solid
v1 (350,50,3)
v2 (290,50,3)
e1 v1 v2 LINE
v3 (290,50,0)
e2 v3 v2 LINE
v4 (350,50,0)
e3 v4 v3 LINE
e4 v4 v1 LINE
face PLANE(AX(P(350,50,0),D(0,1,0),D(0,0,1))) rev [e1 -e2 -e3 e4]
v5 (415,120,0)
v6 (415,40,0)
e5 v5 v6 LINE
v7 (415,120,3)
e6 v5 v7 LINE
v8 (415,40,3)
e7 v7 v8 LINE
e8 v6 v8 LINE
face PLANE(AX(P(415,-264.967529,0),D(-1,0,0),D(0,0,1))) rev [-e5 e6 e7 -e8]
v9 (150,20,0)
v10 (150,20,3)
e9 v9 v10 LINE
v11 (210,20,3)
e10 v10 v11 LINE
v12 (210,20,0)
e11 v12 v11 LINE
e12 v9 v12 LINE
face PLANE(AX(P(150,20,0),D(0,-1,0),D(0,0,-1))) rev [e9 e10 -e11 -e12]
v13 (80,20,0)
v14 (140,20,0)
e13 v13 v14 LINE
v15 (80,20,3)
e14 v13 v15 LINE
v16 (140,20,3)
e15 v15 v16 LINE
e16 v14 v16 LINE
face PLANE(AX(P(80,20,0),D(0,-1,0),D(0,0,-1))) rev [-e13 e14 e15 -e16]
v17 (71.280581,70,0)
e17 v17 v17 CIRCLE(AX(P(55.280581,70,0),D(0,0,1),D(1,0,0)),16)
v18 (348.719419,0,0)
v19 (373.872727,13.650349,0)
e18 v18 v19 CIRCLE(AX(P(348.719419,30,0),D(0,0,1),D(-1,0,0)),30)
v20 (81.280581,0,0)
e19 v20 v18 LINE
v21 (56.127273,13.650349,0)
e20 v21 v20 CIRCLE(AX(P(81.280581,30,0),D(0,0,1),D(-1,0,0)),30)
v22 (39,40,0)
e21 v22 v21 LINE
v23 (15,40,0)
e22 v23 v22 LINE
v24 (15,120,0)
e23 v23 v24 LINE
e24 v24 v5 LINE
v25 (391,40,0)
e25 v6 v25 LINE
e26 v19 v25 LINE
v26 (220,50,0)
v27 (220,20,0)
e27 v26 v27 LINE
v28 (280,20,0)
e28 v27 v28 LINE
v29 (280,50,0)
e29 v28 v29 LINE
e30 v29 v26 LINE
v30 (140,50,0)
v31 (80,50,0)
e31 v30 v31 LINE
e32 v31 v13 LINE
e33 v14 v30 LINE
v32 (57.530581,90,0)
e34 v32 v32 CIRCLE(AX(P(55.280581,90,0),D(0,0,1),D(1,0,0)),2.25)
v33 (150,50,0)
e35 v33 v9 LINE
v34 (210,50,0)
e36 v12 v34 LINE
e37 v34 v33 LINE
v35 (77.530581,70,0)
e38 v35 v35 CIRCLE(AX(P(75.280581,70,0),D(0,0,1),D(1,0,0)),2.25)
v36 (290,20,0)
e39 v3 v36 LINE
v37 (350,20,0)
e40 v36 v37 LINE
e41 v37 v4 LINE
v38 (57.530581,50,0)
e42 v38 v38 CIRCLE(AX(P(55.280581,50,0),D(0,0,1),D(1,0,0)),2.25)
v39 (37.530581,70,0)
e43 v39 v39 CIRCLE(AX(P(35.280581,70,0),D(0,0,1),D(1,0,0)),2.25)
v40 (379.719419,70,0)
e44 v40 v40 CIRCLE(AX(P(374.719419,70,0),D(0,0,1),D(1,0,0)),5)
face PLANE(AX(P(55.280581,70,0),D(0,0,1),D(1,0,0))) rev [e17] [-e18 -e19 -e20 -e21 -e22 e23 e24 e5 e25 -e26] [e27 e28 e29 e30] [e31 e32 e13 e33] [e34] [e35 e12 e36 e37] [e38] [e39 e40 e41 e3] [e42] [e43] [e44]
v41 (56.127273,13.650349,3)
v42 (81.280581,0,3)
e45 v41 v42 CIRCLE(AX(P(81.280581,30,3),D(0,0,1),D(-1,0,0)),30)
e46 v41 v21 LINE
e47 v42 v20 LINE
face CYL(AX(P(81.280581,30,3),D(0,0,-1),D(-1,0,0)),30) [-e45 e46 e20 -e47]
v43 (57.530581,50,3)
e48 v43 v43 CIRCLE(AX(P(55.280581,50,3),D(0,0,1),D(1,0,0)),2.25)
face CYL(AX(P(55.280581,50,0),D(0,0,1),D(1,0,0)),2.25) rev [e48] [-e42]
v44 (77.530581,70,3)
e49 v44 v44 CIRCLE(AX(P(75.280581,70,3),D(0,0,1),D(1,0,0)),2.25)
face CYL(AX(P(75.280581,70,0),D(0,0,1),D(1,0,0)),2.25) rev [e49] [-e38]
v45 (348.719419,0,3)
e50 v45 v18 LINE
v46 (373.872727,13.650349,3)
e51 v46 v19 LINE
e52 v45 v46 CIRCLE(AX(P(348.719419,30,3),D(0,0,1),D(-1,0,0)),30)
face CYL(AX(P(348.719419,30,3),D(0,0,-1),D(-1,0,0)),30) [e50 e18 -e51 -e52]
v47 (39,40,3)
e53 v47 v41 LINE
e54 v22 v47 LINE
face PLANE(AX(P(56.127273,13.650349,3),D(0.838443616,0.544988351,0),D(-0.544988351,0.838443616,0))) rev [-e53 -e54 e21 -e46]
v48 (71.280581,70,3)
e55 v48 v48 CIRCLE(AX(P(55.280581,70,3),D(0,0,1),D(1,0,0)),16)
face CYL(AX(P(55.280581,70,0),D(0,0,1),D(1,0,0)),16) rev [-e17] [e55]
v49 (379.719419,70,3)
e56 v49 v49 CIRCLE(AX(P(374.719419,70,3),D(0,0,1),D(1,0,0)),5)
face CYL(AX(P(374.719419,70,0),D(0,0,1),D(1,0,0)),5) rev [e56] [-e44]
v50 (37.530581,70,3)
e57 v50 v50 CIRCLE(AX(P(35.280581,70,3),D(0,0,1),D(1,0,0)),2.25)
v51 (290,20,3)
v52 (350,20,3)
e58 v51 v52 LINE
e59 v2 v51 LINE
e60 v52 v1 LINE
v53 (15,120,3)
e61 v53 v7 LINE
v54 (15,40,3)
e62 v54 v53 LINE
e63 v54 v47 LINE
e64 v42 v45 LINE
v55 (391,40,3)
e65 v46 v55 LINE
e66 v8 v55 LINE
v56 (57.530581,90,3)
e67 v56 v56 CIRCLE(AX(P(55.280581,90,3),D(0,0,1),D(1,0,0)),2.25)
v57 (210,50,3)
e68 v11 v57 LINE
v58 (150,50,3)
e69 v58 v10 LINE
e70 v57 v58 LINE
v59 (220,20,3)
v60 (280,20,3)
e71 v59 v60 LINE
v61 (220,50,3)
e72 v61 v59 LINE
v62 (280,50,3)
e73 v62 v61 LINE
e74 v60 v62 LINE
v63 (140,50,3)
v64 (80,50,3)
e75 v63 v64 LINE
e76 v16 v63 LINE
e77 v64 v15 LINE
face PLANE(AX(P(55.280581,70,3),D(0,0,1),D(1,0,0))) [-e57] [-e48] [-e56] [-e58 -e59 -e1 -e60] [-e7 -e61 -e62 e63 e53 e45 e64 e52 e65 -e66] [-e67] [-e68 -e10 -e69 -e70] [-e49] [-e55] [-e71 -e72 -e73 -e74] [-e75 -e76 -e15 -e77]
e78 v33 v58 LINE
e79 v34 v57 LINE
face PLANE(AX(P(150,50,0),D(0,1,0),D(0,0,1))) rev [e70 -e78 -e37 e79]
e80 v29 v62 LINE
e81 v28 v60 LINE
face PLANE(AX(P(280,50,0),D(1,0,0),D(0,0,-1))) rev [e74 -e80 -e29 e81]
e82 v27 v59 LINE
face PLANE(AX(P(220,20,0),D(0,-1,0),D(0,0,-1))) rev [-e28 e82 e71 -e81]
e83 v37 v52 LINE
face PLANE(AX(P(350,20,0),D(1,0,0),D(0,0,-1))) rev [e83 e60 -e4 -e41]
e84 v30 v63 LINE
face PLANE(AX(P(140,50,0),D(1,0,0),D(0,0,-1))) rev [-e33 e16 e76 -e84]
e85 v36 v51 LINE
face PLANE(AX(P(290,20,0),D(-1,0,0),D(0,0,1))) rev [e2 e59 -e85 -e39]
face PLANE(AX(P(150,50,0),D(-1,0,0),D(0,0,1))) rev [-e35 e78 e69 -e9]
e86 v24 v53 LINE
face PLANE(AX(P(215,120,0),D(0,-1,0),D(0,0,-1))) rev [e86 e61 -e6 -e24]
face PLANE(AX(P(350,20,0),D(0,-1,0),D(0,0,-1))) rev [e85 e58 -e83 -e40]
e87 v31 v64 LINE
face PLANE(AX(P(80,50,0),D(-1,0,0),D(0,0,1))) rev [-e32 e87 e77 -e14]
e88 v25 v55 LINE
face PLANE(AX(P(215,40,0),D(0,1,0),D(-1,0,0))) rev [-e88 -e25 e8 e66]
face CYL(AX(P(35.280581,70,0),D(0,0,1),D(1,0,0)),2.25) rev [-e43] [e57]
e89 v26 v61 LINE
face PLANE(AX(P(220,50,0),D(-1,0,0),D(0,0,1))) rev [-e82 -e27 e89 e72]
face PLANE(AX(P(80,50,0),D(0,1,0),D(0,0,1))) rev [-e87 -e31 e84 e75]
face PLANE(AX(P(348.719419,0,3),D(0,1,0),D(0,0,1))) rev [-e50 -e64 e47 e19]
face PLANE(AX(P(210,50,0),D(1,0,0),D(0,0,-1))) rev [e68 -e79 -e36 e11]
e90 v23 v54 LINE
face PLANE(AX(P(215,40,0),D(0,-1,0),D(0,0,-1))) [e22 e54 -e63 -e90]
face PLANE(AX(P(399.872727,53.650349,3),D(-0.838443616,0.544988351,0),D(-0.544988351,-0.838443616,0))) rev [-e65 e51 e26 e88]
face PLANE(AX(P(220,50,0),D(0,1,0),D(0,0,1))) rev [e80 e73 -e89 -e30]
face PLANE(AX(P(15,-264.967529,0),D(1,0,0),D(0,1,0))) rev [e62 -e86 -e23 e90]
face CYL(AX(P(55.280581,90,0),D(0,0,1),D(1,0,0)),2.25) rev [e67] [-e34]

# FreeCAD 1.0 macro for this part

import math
import FreeCAD as App
import Part
import Sketcher

doc = App.newDocument("Part")
body = doc.addObject("PartDesign::Body", "Body")

sketch1 = body.newObject("Sketcher::SketchObject", "Sketch")
sketch1.AttachmentSupport = (doc.getObject("XY_Plane"), [""])
sketch1.MapMode = "FlatFace"
sketch1.addGeometry([
    Part.LineSegment(App.Vector(375, 100, 0), App.Vector(55, 100, 0)),
    Part.ArcOfCircle(Part.Circle(App.Vector(55, 70, 0), App.Vector(0, 0, 1), 30), math.radians(90), math.radians(213)),
    Part.LineSegment(App.Vector(30, 54, 0), App.Vector(56, 14, 0)),
    Part.ArcOfCircle(Part.Circle(App.Vector(81, 30, 0), App.Vector(0, 0, 1), 30), math.radians(-147), math.radians(-90)),
    Part.LineSegment(App.Vector(81, 0, 0), App.Vector(349, 0, 0)),
    Part.ArcOfCircle(Part.Circle(App.Vector(349, 30, 0), App.Vector(0, 0, 1), 30), math.radians(-90), math.radians(-33)),
    Part.LineSegment(App.Vector(374, 14, 0), App.Vector(400, 54, 0)),
    Part.ArcOfCircle(Part.Circle(App.Vector(375, 70, 0), App.Vector(0, 0, 1), 30), math.radians(-33), math.radians(90)),
], False)
sketch1.addConstraint([
    Sketcher.Constraint("Tangent", 0, 2, 1, 1),
    Sketcher.Constraint("Tangent", 1, 2, 2, 1),
    Sketcher.Constraint("Tangent", 2, 2, 3, 1),
    Sketcher.Constraint("Tangent", 3, 2, 4, 1),
    Sketcher.Constraint("Tangent", 4, 2, 5, 1),
    Sketcher.Constraint("Tangent", 5, 2, 6, 1),
    Sketcher.Constraint("Tangent", 6, 2, 7, 1),
    Sketcher.Constraint("Tangent", 7, 2, 0, 1),
    Sketcher.Constraint("Horizontal", 0),
    Sketcher.Constraint("Horizontal", 4),
    Sketcher.Constraint("Equal", 1, 3),
    Sketcher.Constraint("Equal", 3, 5),
    Sketcher.Constraint("Equal", 5, 7),
    Sketcher.Constraint("PointOnObject", 3, 2, -1),
    Sketcher.Constraint("Horizontal", 2, 2, 5, 2),
    Sketcher.Constraint("Radius", 1, 30.0),
    Sketcher.Constraint("DistanceY", -1, 1, 1, 3, 70.0),
    Sketcher.Constraint("DistanceX", 1, 3, 3, 3, 26.0),
    Sketcher.Constraint("DistanceX", 0, 2, 0, 1, 319.438837),
    Sketcher.Constraint("DistanceX", -1, 1, 1, 3, 55.280581),
])
pad1 = body.newObject("PartDesign::Pad", "Pad")
pad1.Profile = sketch1
pad1.Length = 3

sketch2 = body.newObject("Sketcher::SketchObject", "Sketch001")
sketch2.AttachmentSupport = (doc.getObject("XY_Plane"), [""])
sketch2.MapMode = "FlatFace"
sketch2.AttachmentOffset = App.Placement(App.Vector(0, 0, 3), App.Rotation())
sketch2.addGeometry([
    Part.LineSegment(App.Vector(80, 50, 0), App.Vector(80, 20, 0)),
    Part.LineSegment(App.Vector(80, 20, 0), App.Vector(140, 20, 0)),
    Part.LineSegment(App.Vector(140, 20, 0), App.Vector(140, 50, 0)),
    Part.LineSegment(App.Vector(140, 50, 0), App.Vector(80, 50, 0)),
    Part.LineSegment(App.Vector(150, 50, 0), App.Vector(150, 20, 0)),
    Part.LineSegment(App.Vector(150, 20, 0), App.Vector(210, 20, 0)),
    Part.LineSegment(App.Vector(210, 20, 0), App.Vector(210, 50, 0)),
    Part.LineSegment(App.Vector(210, 50, 0), App.Vector(150, 50, 0)),
    Part.LineSegment(App.Vector(220, 50, 0), App.Vector(220, 20, 0)),
    Part.LineSegment(App.Vector(220, 20, 0), App.Vector(280, 20, 0)),
    Part.LineSegment(App.Vector(280, 20, 0), App.Vector(280, 50, 0)),
    Part.LineSegment(App.Vector(280, 50, 0), App.Vector(220, 50, 0)),
    Part.LineSegment(App.Vector(290, 50, 0), App.Vector(290, 20, 0)),
    Part.LineSegment(App.Vector(290, 20, 0), App.Vector(350, 20, 0)),
    Part.LineSegment(App.Vector(350, 20, 0), App.Vector(350, 50, 0)),
    Part.LineSegment(App.Vector(350, 50, 0), App.Vector(290, 50, 0)),
], False)
sketch2.addConstraint([
    Sketcher.Constraint("Coincident", 0, 2, 1, 1),
    Sketcher.Constraint("Coincident", 1, 2, 2, 1),
    Sketcher.Constraint("Coincident", 2, 2, 3, 1),
    Sketcher.Constraint("Coincident", 3, 2, 0, 1),
    Sketcher.Constraint("Coincident", 4, 2, 5, 1),
    Sketcher.Constraint("Coincident", 5, 2, 6, 1),
    Sketcher.Constraint("Coincident", 6, 2, 7, 1),
    Sketcher.Constraint("Coincident", 7, 2, 4, 1),
    Sketcher.Constraint("Coincident", 8, 2, 9, 1),
    Sketcher.Constraint("Coincident", 9, 2, 10, 1),
    Sketcher.Constraint("Coincident", 10, 2, 11, 1),
    Sketcher.Constraint("Coincident", 11, 2, 8, 1),
    Sketcher.Constraint("Coincident", 12, 2, 13, 1),
    Sketcher.Constraint("Coincident", 13, 2, 14, 1),
    Sketcher.Constraint("Coincident", 14, 2, 15, 1),
    Sketcher.Constraint("Coincident", 15, 2, 12, 1),
    Sketcher.Constraint("Vertical", 0),
    Sketcher.Constraint("Horizontal", 1),
    Sketcher.Constraint("Vertical", 2),
    Sketcher.Constraint("Horizontal", 3),
    Sketcher.Constraint("Vertical", 4),
    Sketcher.Constraint("Horizontal", 5),
    Sketcher.Constraint("Vertical", 6),
    Sketcher.Constraint("Horizontal", 7),
    Sketcher.Constraint("Vertical", 8),
    Sketcher.Constraint("Horizontal", 9),
    Sketcher.Constraint("Vertical", 10),
    Sketcher.Constraint("Horizontal", 11),
    Sketcher.Constraint("Vertical", 12),
    Sketcher.Constraint("Horizontal", 13),
    Sketcher.Constraint("Vertical", 14),
    Sketcher.Constraint("Horizontal", 15),
    Sketcher.Constraint("Horizontal", 1, 2, 4, 2),
    Sketcher.Constraint("Horizontal", 3, 2, 6, 2),
    Sketcher.Constraint("Horizontal", 5, 2, 8, 2),
    Sketcher.Constraint("Horizontal", 7, 2, 10, 2),
    Sketcher.Constraint("Horizontal", 9, 2, 12, 2),
    Sketcher.Constraint("Horizontal", 11, 2, 14, 2),
    Sketcher.Constraint("Equal", 3, 5),
    Sketcher.Constraint("Equal", 7, 9),
    Sketcher.Constraint("Equal", 11, 13),
    Sketcher.Constraint("DistanceX", 1, 1, 1, 2, 60.0),
    Sketcher.Constraint("DistanceY", 0, 2, 0, 1, 30.0),
    Sketcher.Constraint("DistanceX", -1, 1, 0, 2, 80.0),
    Sketcher.Constraint("DistanceY", -1, 1, 0, 2, 20.0),
    Sketcher.Constraint("DistanceX", -1, 1, 4, 2, 150.0),
    Sketcher.Constraint("DistanceX", -1, 1, 8, 2, 220.0),
    Sketcher.Constraint("DistanceX", -1, 1, 12, 2, 290.0),
])
pocket1 = body.newObject("PartDesign::Pocket", "Pocket")
pocket1.Profile = sketch2
pocket1.Type = "ThroughAll"

sketch3 = body.newObject("Sketcher::SketchObject", "Sketch002")
sketch3.AttachmentSupport = (doc.getObject("XY_Plane"), [""])
sketch3.MapMode = "FlatFace"
sketch3.AttachmentOffset = App.Placement(App.Vector(0, 0, 3), App.Rotation())
sketch3.addGeometry([
    Part.Circle(App.Vector(55.3, 70, 0), App.Vector(0, 0, 1), 16),
    Part.Circle(App.Vector(55.3, 90, 0), App.Vector(0, 0, 1), 2.2),
    Part.Circle(App.Vector(75.3, 70, 0), App.Vector(0, 0, 1), 2.2),
    Part.Circle(App.Vector(55.3, 50, 0), App.Vector(0, 0, 1), 2.2),
    Part.Circle(App.Vector(35.3, 70, 0), App.Vector(0, 0, 1), 2.2),
    Part.Circle(App.Vector(374.7, 70, 0), App.Vector(0, 0, 1), 5),
], False)
sketch3.addConstraint([
    Sketcher.Constraint("Equal", 1, 2),
    Sketcher.Constraint("Equal", 2, 3),
    Sketcher.Constraint("Equal", 3, 4),
    Sketcher.Constraint("Horizontal", 0, 3, 2, 3),
    Sketcher.Constraint("Horizontal", 2, 3, 4, 3),
    Sketcher.Constraint("Horizontal", 4, 3, 5, 3),
    Sketcher.Constraint("Vertical", 0, 3, 1, 3),
    Sketcher.Constraint("Vertical", 1, 3, 3, 3),
    Sketcher.Constraint("Diameter", 0, 32.0),
    Sketcher.Constraint("Diameter", 5, 10.0),
    Sketcher.Constraint("Diameter", 1, 4.5),
    Sketcher.Constraint("DistanceY", -1, 1, 0, 3, 70.0),
    Sketcher.Constraint("DistanceY", -1, 1, 1, 3, 90.0),
    Sketcher.Constraint("DistanceY", -1, 1, 3, 3, 50.0),
    Sketcher.Constraint("DistanceX", 0, 3, 2, 3, 20.0),
    Sketcher.Constraint("DistanceX", 4, 3, 0, 3, 20.0),
    Sketcher.Constraint("DistanceX", -1, 1, 0, 3, 55.280581),
    Sketcher.Constraint("DistanceX", -1, 1, 5, 3, 374.719419),
])
pocket2 = body.newObject("PartDesign::Pocket", "Pocket001")
pocket2.Profile = sketch3
pocket2.Type = "ThroughAll"

sketch4 = body.newObject("Sketcher::SketchObject", "Sketch003")
sketch4.AttachmentSupport = (doc.getObject("XY_Plane"), [""])
sketch4.MapMode = "FlatFace"
sketch4.addGeometry([
    Part.LineSegment(App.Vector(400, 54, 0), App.Vector(391, 40, 0)),
    Part.LineSegment(App.Vector(391, 40, 0), App.Vector(415, 40, 0)),
    Part.LineSegment(App.Vector(415, 40, 0), App.Vector(415, 120, 0)),
    Part.LineSegment(App.Vector(415, 120, 0), App.Vector(15, 120, 0)),
    Part.LineSegment(App.Vector(15, 120, 0), App.Vector(15, 40, 0)),
    Part.LineSegment(App.Vector(15, 40, 0), App.Vector(39, 40, 0)),
    Part.LineSegment(App.Vector(39, 40, 0), App.Vector(30, 54, 0)),
    Part.ArcOfCircle(Part.Circle(App.Vector(55, 70, 0), App.Vector(0, 0, 1), 30), math.radians(90), math.radians(213)),
    Part.LineSegment(App.Vector(55, 100, 0), App.Vector(375, 100, 0)),
    Part.ArcOfCircle(Part.Circle(App.Vector(375, 70, 0), App.Vector(0, 0, 1), 30), math.radians(-33), math.radians(90)),
], False)
sketch4.addConstraint([
    Sketcher.Constraint("Coincident", 0, 2, 1, 1),
    Sketcher.Constraint("Coincident", 1, 2, 2, 1),
    Sketcher.Constraint("Coincident", 2, 2, 3, 1),
    Sketcher.Constraint("Coincident", 3, 2, 4, 1),
    Sketcher.Constraint("Coincident", 4, 2, 5, 1),
    Sketcher.Constraint("Coincident", 5, 2, 6, 1),
    Sketcher.Constraint("Tangent", 6, 2, 7, 2),
    Sketcher.Constraint("Tangent", 7, 1, 8, 1),
    Sketcher.Constraint("Tangent", 8, 2, 9, 2),
    Sketcher.Constraint("Tangent", 9, 1, 0, 1),
    Sketcher.Constraint("Horizontal", 1),
    Sketcher.Constraint("Vertical", 2),
    Sketcher.Constraint("Horizontal", 3),
    Sketcher.Constraint("Vertical", 4),
    Sketcher.Constraint("Horizontal", 5),
    Sketcher.Constraint("Horizontal", 8),
    Sketcher.Constraint("Equal", 7, 9),
    Sketcher.Constraint("Horizontal", 1, 2, 4, 2),
    Sketcher.Constraint("Horizontal", 6, 2, 9, 1),
    Sketcher.Constraint("Equal", 1, 5),
    Sketcher.Constraint("Radius", 7, 30.0),
    Sketcher.Constraint("DistanceX", 1, 1, 1, 2, 24.0),
    Sketcher.Constraint("DistanceX", 3, 2, 3, 1, 400.0),
    Sketcher.Constraint("DistanceY", 2, 1, 2, 2, 80.0),
    Sketcher.Constraint("DistanceY", -1, 1, 7, 3, 70.0),
    Sketcher.Constraint("DistanceX", -1, 1, 0, 2, 391.0),
    Sketcher.Constraint("DistanceY", -1, 1, 0, 2, 40.0),
    Sketcher.Constraint("Distance", 0, 16.280581),
])
pad2 = body.newObject("PartDesign::Pad", "Pad001")
pad2.Profile = sketch4
pad2.Length = 3

doc.recompute()
